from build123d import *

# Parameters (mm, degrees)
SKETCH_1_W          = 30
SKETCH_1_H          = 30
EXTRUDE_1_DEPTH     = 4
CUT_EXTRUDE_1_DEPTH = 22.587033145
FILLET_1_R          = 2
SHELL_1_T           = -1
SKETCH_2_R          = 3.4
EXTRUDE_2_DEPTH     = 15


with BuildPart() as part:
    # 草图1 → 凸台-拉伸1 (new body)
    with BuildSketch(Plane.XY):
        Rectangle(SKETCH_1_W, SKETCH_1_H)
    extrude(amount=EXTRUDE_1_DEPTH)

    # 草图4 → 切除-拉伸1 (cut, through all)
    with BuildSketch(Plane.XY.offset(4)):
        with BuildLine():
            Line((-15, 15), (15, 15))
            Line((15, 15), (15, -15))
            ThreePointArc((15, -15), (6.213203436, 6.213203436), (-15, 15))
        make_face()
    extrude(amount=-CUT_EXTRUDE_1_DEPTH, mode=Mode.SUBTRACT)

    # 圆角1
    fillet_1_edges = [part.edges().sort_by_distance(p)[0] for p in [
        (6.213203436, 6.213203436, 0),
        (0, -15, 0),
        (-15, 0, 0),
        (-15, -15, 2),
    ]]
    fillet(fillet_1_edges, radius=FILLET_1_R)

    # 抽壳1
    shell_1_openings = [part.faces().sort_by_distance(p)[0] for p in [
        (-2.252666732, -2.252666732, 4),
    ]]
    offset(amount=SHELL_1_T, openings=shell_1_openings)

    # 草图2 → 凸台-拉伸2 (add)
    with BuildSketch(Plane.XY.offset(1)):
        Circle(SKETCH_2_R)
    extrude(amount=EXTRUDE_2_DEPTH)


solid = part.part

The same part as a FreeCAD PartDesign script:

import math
import FreeCAD as App
import Part
import Sketcher
from FreeCAD import Vector
Q = App.Units.Quantity


def edges_at(feature, points):
    """Names of the edges that pass closest to the given points."""
    edges = feature.Shape.Edges
    near = lambda p: min(range(len(edges)), key=lambda i: edges[i].distToShape(Part.Vertex(*p))[0])
    return sorted({f"Edge{near(p) + 1}" for p in points})


def faces_at(feature, points):
    """Names of the faces that lie closest to the given points."""
    faces = feature.Shape.Faces
    near = lambda p: min(range(len(faces)), key=lambda i: faces[i].distToShape(Part.Vertex(*p))[0])
    return sorted({f"Face{near(p) + 1}" for p in points})


def add_polygon(sketch, points):
    """Adds a closed chain of lines whose ends are joined by coincident constraints."""
    first, n = sketch.GeometryCount, len(points)
    for a, b in zip(points, points[1:] + points[:1]):
        sketch.addGeometry(Part.LineSegment(App.Vector(*a, 0), App.Vector(*b, 0)), False)
    for i in range(n):
        sketch.addConstraint(Sketcher.Constraint("Coincident", first + i, 2, first + (i + 1) % n, 1))

doc = App.newDocument("Part")
body = doc.addObject("PartDesign::Body", "Body")

# Sketch on XY plane
sketch1 = body.newObject("Sketcher::SketchObject", "Sketch")
sketch1.AttachmentSupport = (doc.getObject("XY_Plane"), [""])
sketch1.MapMode = "FlatFace"
add_polygon(sketch1, [(-15, 15), (-15, -15), (15, -15), (15, 15)])  # lines 0-3
sketch1.addConstraint([
    Sketcher.Constraint("Vertical", 0),
    Sketcher.Constraint("Horizontal", 1),
    Sketcher.Constraint("Vertical", 2),
    Sketcher.Constraint("Horizontal", 3),
    Sketcher.Constraint("Symmetric", 0, 2, 2, 2, -1, 1),
    Sketcher.Constraint("Equal", 3, 0),
    Sketcher.Constraint("DistanceX", 1, 1, 1, 2, Q("30 mm")),
])
pad1 = body.newObject("PartDesign::Pad", "Pad")
pad1.Profile = sketch1
pad1.Length = 4

# Sketch on XY plane
sketch2 = body.newObject("Sketcher::SketchObject", "Sketch001")
sketch2.AttachmentSupport = (doc.getObject("XY_Plane"), [""])
sketch2.MapMode = "FlatFace"
sketch2.AttachmentOffset = App.Placement(Vector(0, 0, 4), App.Rotation())
sketch2.addGeometry([
    Part.LineSegment(Vector(15, 15, 0), Vector(-15, 15, 0)),
    Part.ArcOfCircle(Part.Circle(Vector(-15, -15, 0), Vector(0, 0, 1), 30), math.radians(0), math.radians(90)),
    Part.LineSegment(Vector(15, -15, 0), Vector(15, 15, 0)),
], False)
sketch2.addConstraint([
    Sketcher.Constraint("Tangent", 0, 2, 1, 2),
    Sketcher.Constraint("Tangent", 1, 1, 2, 1),
    Sketcher.Constraint("Coincident", 2, 2, 0, 1),
    Sketcher.Constraint("Horizontal", 0),
    Sketcher.Constraint("Vertical", 2),
    Sketcher.Constraint("Symmetric", 0, 2, 1, 1, -1, 1),
    Sketcher.Constraint("Radius", 1, Q("30 mm")),
])
pocket1 = body.newObject("PartDesign::Pocket", "Pocket")
pocket1.Profile = sketch2
pocket1.Type = "ThroughAll"
doc.recompute()

fillet = body.newObject("PartDesign::Fillet", "Fillet")
fillet.Base = (pocket1, edges_at(pocket1, [
    (6.213, 6.213, 0),
    (0, -15, 0),
    (-15, 0, 0),
    (-15, -15, 2),
]))
fillet.Radius = 2
doc.recompute()

thickness = body.newObject("PartDesign::Thickness", "Thickness")
thickness.Base = (fillet, faces_at(fillet, [(0, 0, 4)]))
thickness.Value = 1
thickness.Reversed = True
thickness.Join = "Arc"

# Sketch on XY plane
sketch3 = body.newObject("Sketcher::SketchObject", "Sketch002")
sketch3.AttachmentSupport = (doc.getObject("XY_Plane"), [""])
sketch3.MapMode = "FlatFace"
sketch3.AttachmentOffset = App.Placement(Vector(0, 0, 1), App.Rotation())
sketch3.addGeometry(Part.Circle(Vector(0, 0, 0), Vector(0, 0, 1), 3.4), False)
sketch3.addConstraint([
    Sketcher.Constraint("Coincident", 0, 3, -1, 1),
    Sketcher.Constraint("Diameter", 0, Q("6.8 mm")),
])
pad2 = body.newObject("PartDesign::Pad", "Pad001")
pad2.Profile = sketch3
pad2.Length = 15

doc.recompute()
